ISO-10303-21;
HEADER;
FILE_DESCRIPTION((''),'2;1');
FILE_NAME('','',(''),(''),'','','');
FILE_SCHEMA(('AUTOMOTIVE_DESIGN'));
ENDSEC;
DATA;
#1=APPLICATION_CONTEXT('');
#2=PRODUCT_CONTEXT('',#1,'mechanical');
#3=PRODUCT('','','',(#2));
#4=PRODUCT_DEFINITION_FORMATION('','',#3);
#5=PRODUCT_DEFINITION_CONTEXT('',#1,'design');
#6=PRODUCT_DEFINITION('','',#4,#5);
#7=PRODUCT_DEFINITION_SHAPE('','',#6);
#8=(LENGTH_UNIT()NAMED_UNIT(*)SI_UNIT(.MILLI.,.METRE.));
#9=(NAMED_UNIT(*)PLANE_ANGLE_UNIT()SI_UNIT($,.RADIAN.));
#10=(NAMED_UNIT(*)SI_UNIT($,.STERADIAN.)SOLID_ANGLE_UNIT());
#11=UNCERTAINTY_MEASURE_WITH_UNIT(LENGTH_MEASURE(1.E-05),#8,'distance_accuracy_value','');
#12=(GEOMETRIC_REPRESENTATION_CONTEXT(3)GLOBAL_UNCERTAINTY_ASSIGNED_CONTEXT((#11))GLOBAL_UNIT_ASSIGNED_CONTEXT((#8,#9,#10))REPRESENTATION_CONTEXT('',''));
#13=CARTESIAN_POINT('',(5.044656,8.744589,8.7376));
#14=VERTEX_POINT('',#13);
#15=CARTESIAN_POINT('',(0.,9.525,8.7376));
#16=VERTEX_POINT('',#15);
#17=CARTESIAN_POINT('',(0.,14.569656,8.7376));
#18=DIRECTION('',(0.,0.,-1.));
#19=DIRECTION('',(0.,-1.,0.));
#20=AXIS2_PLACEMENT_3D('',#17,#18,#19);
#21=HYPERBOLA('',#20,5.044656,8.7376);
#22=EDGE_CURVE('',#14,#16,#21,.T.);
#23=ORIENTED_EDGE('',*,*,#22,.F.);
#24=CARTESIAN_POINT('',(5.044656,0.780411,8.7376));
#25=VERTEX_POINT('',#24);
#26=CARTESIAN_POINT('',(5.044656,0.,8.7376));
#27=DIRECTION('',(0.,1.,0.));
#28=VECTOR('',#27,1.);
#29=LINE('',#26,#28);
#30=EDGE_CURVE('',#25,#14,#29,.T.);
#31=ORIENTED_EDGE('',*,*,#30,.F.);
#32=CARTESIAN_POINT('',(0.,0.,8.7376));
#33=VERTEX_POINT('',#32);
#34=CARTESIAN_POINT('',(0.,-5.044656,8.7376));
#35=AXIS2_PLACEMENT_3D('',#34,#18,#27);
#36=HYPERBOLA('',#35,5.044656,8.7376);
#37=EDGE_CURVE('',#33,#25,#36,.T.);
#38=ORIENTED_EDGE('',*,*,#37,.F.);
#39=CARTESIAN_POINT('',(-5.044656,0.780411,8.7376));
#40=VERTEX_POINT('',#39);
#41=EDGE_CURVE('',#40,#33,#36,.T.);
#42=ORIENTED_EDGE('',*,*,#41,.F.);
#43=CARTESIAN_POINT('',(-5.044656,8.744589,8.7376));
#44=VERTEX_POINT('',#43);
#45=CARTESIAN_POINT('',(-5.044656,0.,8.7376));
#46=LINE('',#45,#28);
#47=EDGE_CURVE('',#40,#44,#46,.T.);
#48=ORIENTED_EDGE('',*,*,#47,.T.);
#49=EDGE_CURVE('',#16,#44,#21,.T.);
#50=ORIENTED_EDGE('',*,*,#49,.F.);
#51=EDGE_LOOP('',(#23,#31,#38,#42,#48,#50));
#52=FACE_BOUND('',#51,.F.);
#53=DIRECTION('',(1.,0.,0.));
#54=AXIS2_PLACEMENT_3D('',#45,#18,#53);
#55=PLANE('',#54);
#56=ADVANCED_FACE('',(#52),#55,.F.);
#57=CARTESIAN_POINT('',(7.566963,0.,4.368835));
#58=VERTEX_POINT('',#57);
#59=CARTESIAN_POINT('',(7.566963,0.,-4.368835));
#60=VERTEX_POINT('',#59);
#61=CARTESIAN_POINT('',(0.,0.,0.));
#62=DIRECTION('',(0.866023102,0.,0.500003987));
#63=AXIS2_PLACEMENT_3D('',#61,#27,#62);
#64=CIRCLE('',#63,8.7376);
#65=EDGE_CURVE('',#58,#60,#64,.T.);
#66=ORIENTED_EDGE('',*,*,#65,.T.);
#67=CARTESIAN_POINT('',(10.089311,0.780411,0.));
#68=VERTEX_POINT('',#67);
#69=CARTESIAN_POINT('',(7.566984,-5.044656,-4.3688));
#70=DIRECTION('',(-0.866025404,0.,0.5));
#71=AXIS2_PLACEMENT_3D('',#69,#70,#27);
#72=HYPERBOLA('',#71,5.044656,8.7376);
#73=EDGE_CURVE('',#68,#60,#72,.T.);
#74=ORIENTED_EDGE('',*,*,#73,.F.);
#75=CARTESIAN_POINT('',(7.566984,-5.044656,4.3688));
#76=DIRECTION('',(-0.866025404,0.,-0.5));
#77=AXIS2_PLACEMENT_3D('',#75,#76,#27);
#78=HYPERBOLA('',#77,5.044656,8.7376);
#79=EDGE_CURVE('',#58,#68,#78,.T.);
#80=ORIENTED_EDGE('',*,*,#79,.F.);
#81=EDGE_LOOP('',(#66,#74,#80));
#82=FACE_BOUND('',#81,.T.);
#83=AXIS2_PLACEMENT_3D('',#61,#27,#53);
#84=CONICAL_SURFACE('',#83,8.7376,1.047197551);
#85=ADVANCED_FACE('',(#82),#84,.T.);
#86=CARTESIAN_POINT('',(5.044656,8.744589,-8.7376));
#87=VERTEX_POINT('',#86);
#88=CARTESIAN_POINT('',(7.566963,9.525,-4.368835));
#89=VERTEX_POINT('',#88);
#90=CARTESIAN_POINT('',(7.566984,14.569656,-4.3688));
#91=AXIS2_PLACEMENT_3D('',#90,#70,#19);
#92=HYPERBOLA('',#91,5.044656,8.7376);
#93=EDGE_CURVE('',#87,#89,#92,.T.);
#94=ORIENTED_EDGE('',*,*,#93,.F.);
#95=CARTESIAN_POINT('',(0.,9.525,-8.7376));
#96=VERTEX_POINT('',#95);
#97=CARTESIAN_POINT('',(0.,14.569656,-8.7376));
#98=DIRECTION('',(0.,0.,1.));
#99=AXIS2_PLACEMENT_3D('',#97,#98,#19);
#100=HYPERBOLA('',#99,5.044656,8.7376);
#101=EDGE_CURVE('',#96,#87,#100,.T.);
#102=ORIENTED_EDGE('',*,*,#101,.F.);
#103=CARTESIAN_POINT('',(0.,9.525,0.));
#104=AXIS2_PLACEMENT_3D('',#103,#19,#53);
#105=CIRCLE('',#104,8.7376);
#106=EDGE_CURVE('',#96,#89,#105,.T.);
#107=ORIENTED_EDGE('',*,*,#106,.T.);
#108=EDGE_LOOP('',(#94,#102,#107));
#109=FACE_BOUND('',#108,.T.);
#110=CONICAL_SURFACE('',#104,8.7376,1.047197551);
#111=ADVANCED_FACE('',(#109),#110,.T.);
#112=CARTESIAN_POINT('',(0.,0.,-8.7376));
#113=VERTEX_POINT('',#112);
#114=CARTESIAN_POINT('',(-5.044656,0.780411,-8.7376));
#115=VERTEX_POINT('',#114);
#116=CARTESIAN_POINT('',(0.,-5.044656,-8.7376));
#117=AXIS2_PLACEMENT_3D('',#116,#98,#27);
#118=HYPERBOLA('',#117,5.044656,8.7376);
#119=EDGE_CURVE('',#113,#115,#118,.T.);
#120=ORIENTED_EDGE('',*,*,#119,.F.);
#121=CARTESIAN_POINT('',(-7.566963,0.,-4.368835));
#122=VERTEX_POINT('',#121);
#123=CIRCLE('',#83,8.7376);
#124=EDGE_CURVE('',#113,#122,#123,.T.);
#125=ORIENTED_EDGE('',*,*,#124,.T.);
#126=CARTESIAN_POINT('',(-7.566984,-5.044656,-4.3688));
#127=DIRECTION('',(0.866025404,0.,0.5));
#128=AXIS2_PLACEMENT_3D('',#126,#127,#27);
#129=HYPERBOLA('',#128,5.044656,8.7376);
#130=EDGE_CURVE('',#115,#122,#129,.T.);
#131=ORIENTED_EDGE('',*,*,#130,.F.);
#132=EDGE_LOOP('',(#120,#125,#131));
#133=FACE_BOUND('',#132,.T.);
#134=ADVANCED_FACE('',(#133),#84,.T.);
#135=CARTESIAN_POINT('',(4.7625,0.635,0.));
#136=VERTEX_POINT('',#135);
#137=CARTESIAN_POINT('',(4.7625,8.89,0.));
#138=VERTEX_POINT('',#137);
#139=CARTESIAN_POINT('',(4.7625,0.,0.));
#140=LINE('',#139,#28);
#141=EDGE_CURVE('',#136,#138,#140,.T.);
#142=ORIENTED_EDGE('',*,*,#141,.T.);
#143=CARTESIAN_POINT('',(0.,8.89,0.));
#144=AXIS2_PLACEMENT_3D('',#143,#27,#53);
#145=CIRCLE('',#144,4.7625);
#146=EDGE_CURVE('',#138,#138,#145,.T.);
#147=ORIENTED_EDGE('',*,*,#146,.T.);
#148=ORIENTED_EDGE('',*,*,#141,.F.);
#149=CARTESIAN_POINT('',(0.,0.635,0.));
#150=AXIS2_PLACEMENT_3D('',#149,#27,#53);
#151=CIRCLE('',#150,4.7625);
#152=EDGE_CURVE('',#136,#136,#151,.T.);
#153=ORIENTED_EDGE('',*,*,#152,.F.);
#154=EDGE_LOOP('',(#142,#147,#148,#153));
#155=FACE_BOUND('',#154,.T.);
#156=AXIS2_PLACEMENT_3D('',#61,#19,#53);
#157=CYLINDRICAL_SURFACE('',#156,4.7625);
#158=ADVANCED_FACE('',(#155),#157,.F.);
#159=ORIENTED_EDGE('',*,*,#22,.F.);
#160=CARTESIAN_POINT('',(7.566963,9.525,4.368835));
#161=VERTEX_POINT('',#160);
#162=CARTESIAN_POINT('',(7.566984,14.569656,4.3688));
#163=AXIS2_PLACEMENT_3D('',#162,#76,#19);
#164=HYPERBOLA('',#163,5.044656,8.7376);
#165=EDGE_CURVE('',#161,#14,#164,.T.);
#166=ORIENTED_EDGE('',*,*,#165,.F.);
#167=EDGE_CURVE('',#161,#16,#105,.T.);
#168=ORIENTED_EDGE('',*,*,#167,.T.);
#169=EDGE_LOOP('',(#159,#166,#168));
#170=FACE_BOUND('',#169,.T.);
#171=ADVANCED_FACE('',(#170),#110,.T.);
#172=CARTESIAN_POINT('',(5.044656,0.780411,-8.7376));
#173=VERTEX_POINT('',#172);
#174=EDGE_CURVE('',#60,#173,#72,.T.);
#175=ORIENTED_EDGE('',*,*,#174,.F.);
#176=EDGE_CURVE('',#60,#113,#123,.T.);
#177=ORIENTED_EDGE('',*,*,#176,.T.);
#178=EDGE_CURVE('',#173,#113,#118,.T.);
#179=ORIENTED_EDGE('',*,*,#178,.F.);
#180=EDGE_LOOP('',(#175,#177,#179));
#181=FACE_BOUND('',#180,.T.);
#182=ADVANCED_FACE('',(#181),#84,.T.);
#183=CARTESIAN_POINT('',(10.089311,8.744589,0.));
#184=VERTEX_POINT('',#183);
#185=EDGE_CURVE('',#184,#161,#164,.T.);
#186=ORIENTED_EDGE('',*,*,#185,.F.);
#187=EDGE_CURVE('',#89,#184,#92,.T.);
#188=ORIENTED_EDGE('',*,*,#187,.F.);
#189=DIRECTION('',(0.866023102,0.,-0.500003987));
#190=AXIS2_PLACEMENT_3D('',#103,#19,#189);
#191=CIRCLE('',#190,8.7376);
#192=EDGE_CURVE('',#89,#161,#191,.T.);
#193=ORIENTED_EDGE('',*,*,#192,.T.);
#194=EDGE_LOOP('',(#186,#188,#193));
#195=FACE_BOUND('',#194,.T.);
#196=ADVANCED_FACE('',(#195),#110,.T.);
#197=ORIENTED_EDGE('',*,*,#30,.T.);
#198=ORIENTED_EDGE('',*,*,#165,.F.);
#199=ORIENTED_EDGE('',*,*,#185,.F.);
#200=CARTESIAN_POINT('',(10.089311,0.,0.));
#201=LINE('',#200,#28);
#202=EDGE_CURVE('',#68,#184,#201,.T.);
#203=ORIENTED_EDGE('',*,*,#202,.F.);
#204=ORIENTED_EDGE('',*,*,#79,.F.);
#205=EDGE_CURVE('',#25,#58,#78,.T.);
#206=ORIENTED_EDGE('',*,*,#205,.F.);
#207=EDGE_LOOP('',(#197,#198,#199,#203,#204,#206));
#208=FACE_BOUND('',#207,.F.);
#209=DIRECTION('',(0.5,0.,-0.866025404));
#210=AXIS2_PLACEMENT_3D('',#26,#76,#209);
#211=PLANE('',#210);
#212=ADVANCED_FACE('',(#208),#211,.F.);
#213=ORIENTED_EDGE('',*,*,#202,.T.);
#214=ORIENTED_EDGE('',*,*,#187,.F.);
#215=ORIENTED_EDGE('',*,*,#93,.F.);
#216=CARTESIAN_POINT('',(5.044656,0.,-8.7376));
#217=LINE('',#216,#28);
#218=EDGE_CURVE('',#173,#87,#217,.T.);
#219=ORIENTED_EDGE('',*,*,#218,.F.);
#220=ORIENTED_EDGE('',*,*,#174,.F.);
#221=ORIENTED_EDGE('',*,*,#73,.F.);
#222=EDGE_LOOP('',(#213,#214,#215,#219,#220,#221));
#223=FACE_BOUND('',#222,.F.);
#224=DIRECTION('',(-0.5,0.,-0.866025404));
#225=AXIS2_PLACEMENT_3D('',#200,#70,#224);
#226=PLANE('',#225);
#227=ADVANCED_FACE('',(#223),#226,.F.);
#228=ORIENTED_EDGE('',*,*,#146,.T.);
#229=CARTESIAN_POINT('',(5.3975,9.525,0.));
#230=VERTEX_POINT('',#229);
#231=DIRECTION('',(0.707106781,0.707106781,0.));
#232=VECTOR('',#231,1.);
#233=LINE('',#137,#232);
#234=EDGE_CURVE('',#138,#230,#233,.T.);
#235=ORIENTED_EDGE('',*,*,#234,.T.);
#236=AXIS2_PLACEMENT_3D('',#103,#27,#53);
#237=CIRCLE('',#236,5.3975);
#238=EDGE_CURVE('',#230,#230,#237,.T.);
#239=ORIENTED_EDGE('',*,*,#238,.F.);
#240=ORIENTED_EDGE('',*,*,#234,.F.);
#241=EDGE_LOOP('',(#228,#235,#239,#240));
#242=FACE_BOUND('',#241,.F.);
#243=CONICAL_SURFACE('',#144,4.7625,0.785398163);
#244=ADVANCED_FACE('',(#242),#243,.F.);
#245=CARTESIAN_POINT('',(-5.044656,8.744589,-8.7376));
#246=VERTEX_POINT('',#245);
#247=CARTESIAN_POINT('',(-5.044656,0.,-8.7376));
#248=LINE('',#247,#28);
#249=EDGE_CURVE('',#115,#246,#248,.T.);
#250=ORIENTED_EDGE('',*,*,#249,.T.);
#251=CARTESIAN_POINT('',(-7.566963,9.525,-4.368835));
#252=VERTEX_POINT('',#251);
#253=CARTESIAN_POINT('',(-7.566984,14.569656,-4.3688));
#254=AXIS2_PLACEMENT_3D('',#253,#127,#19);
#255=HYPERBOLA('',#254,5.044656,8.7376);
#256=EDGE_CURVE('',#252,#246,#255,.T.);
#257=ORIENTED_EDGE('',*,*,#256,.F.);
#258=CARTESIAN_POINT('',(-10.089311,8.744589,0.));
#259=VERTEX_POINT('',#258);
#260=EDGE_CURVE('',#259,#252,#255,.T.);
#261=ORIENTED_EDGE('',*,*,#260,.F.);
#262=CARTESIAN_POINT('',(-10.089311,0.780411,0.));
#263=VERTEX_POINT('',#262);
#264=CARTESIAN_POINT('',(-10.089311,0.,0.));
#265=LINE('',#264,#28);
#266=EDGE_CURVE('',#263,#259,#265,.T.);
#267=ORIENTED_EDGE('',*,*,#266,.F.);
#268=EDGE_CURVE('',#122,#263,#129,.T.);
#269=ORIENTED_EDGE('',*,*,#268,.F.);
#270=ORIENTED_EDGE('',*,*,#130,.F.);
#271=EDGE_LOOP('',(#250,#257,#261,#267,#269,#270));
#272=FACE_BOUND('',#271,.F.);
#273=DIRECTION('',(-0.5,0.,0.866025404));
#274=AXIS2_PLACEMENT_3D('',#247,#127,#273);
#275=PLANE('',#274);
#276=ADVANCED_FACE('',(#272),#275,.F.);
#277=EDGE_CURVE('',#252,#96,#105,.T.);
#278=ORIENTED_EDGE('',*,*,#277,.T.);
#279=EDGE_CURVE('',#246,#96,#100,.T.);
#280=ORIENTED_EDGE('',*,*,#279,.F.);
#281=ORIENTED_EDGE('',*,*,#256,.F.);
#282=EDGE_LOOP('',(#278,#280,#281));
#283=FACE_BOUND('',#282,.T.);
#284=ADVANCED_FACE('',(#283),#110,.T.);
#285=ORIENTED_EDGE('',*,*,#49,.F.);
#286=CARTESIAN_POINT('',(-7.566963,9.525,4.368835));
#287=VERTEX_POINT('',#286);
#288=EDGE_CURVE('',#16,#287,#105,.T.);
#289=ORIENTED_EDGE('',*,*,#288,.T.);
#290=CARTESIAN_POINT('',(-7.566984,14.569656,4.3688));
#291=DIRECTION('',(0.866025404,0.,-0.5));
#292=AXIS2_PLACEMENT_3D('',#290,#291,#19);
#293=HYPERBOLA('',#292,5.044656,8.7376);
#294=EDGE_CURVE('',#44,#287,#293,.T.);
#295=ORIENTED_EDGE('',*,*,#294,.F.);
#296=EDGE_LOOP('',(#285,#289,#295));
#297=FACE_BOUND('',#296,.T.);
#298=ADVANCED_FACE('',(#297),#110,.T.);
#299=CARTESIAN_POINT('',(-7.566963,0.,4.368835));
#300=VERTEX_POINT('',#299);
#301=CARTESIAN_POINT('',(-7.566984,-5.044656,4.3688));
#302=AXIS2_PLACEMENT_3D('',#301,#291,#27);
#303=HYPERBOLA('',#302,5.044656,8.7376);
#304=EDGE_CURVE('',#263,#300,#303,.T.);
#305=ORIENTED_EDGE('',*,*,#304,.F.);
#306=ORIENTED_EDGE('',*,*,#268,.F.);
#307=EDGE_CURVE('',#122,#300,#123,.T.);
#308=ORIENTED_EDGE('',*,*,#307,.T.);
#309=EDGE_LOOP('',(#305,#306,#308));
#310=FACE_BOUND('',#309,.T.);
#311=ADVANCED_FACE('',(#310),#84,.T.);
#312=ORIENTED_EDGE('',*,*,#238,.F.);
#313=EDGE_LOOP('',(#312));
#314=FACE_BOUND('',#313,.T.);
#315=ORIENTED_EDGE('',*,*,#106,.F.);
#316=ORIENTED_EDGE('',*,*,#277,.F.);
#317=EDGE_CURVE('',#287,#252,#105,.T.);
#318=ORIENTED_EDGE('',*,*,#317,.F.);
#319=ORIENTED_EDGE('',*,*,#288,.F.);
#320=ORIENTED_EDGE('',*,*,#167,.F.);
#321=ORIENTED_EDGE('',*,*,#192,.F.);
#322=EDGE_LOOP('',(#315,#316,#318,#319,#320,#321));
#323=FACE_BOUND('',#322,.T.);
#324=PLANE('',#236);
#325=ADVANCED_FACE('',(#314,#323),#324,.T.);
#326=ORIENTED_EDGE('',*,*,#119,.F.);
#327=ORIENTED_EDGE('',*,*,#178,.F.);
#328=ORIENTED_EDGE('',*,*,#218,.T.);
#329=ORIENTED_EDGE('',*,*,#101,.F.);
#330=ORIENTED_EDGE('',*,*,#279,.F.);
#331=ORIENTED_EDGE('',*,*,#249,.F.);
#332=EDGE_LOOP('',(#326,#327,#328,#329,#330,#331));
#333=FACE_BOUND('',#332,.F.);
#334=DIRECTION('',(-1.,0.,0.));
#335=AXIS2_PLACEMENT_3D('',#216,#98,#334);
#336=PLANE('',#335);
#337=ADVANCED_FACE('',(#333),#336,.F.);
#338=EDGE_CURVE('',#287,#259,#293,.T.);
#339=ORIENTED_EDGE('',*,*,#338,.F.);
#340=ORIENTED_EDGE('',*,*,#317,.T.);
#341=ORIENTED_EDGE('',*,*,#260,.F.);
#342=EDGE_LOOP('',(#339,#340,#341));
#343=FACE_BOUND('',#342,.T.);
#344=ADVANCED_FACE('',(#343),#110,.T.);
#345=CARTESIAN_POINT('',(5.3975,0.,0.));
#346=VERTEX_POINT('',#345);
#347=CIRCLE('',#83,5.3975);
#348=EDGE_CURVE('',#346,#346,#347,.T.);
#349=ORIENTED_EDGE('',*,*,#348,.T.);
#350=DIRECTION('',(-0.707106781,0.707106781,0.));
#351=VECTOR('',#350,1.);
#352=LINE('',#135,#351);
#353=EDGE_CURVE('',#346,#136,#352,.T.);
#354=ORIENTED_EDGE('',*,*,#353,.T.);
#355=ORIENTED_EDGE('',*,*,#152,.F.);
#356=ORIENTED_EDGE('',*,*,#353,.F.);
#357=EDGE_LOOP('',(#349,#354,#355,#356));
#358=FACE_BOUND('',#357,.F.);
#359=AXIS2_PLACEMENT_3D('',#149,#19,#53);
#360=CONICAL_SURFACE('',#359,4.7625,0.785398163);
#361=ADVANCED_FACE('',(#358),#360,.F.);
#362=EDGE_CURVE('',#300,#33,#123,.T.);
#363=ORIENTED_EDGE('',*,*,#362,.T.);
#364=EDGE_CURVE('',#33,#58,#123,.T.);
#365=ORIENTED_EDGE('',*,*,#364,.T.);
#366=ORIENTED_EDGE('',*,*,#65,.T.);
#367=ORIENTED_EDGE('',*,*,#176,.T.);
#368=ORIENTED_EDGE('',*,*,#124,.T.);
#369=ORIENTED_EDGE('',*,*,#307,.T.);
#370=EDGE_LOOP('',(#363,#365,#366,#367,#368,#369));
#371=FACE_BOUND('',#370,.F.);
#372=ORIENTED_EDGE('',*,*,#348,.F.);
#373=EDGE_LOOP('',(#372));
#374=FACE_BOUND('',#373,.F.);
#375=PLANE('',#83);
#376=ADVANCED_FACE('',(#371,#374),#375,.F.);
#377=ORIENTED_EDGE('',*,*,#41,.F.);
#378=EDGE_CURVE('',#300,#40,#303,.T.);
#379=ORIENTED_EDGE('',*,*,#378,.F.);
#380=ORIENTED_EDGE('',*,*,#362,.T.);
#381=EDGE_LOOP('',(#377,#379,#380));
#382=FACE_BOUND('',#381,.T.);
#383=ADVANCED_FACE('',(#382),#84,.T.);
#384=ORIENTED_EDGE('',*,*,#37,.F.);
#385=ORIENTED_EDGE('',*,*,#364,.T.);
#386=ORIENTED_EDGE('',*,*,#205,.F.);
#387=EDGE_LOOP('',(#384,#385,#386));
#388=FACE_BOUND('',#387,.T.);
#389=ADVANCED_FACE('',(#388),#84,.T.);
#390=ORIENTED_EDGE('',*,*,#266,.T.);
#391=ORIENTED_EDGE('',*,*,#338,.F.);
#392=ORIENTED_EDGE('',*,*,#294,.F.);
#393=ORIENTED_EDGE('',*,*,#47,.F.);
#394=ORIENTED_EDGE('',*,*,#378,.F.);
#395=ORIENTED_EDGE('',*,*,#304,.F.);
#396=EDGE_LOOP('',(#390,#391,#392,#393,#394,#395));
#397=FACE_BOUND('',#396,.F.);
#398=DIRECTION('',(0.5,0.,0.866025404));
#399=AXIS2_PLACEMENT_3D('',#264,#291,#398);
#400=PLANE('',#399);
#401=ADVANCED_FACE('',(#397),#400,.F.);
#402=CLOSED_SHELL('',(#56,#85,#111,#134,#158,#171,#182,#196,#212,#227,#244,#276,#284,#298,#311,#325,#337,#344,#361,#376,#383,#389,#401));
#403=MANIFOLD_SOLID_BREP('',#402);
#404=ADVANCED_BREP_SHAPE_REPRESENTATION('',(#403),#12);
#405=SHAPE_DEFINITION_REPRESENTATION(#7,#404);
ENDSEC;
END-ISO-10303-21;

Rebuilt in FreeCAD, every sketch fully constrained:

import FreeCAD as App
import Part
import Sketcher
from FreeCAD import Vector
Q = App.Units.Quantity


def edges_at(feature, points):
    """Names of the edges that pass closest to the given points."""
    edges = feature.Shape.Edges
    near = lambda p: min(range(len(edges)), key=lambda i: edges[i].distToShape(Part.Vertex(*p))[0])
    return sorted({f"Edge{near(p) + 1}" for p in points})


def add_polygon(sketch, points):
    """Adds a closed chain of lines whose ends are joined by coincident constraints."""
    first, n = sketch.GeometryCount, len(points)
    for a, b in zip(points, points[1:] + points[:1]):
        sketch.addGeometry(Part.LineSegment(App.Vector(*a, 0), App.Vector(*b, 0)), False)
    for i in range(n):
        sketch.addConstraint(Sketcher.Constraint("Coincident", first + i, 2, first + (i + 1) % n, 1))

doc = App.newDocument("Part")
body = doc.addObject("PartDesign::Body", "Body")

# Sketch on XZ plane
sketch1 = body.newObject("Sketcher::SketchObject", "Sketch")
sketch1.AttachmentSupport = (doc.getObject("XZ_Plane"), [""])
sketch1.MapMode = "FlatFace"
add_polygon(sketch1, [(10.1, 0), (5, -8.7), (-5, -8.7), (-10.1, 0), (-5, 8.7), (5, 8.7)])  # lines 0-5
sketch1.addGeometry(Part.Circle(Vector(0, 0, 0), Vector(0, 0, 1), 4.8), False)  # 6
sketch1.addConstraint(Sketcher.Constraint("Horizontal", 1))
sketch1.addConstraint(Sketcher.Constraint("Horizontal", 4))
sketch1.addConstraint(Sketcher.Constraint("Coincident", 6, 3, -1, 1))
sketch1.addConstraint(Sketcher.Constraint("Symmetric", 0, 2, 3, 2, -1, 1))
sketch1.addConstraint(Sketcher.Constraint("Symmetric", 2, 2, 5, 2, -1, 1))
sketch1.addConstraint(Sketcher.Constraint("PointOnObject", 2, 2, -1))
sketch1.addConstraint(Sketcher.Constraint("Parallel", 2, 5))
sketch1.addConstraint(Sketcher.Constraint("Vertical", 1, 2, 3, 2))
sketch1.addConstraint(Sketcher.Constraint("Diameter", 6, Q("0.375 in")))
sketch1.addConstraint(Sketcher.Constraint("Angle", 0, Q("-120 deg")))
sketch1.addConstraint(Sketcher.Constraint("DistanceY", 0, 2, -1, 1, Q("0.344 in")))
sketch1.addConstraint(Sketcher.Constraint("DistanceX", 1, 2, 1, 1, 10.089311))
pad1 = body.newObject("PartDesign::Pad", "Pad")
pad1.Profile = sketch1
pad1.Length = Q("0.375 in")
pad1.Reversed = True

# Sketch on XZ plane
sketch2 = body.newObject("Sketcher::SketchObject", "Sketch001")
sketch2.AttachmentSupport = (doc.getObject("XZ_Plane"), [""])
sketch2.MapMode = "FlatFace"
sketch2.AttachmentOffset = App.Placement(Vector(0, 0, -0.375 * 25.4), App.Rotation())
add_polygon(sketch2, [(-30, -29), (-30, 29), (30, 29), (30, -29)])  # lines 0-3
sketch2.addGeometry(Part.Circle(Vector(0, 0, 0), Vector(0, 0, 1), 9), False)  # 4
sketch2.addConstraint(Sketcher.Constraint("Vertical", 0))
sketch2.addConstraint(Sketcher.Constraint("Horizontal", 1))
sketch2.addConstraint(Sketcher.Constraint("Vertical", 2))
sketch2.addConstraint(Sketcher.Constraint("Horizontal", 3))
sketch2.addConstraint(Sketcher.Constraint("Coincident", 4, 3, -1, 1))
sketch2.addConstraint(Sketcher.Constraint("Symmetric", 0, 2, 2, 2, -1, 1))
sketch2.addConstraint(Sketcher.Constraint("Diameter", 4, Q("0.688 in")))
sketch2.addConstraint(Sketcher.Constraint("DistanceX", 1, 1, 1, 2, 60.842))
sketch2.addConstraint(Sketcher.Constraint("DistanceY", 0, 1, 0, 2, 58.14))
pocket1 = body.newObject("PartDesign::Pocket", "Pocket")
pocket1.Profile = sketch2
pocket1.Length = Q("0.375 in")
pocket1.Reversed = True
pocket1.TaperAngle = 60

# Sketch on XZ plane
sketch3 = body.newObject("Sketcher::SketchObject", "Sketch002")
sketch3.AttachmentSupport = (doc.getObject("XZ_Plane"), [""])
sketch3.MapMode = "FlatFace"
add_polygon(sketch3, [(-30, 29), (-30, -29), (30, -29), (30, 29)])  # lines 0-3
sketch3.addGeometry(Part.Circle(Vector(0, 0, 0), Vector(0, 0, 1), 9), False)  # 4
sketch3.addConstraint(Sketcher.Constraint("Vertical", 0))
sketch3.addConstraint(Sketcher.Constraint("Horizontal", 1))
sketch3.addConstraint(Sketcher.Constraint("Vertical", 2))
sketch3.addConstraint(Sketcher.Constraint("Horizontal", 3))
sketch3.addConstraint(Sketcher.Constraint("Coincident", 4, 3, -1, 1))
sketch3.addConstraint(Sketcher.Constraint("Symmetric", 0, 2, 2, 2, -1, 1))
sketch3.addConstraint(Sketcher.Constraint("Diameter", 4, Q("0.688 in")))
sketch3.addConstraint(Sketcher.Constraint("DistanceX", 1, 1, 1, 2, 60.842))
sketch3.addConstraint(Sketcher.Constraint("DistanceY", 0, 2, 0, 1, 58.14))
pocket2 = body.newObject("PartDesign::Pocket", "Pocket001")
pocket2.Profile = sketch3
pocket2.Length = Q("0.375 in")
pocket2.TaperAngle = 60
doc.recompute()

chamfer = body.newObject("PartDesign::Chamfer", "Chamfer")
chamfer.Base = (pocket2, edges_at(pocket2, [(-4.763, 0, 0), (-4.763, 9.525, 0)]))
chamfer.Size = Q("0.025 in")

doc.recompute()
